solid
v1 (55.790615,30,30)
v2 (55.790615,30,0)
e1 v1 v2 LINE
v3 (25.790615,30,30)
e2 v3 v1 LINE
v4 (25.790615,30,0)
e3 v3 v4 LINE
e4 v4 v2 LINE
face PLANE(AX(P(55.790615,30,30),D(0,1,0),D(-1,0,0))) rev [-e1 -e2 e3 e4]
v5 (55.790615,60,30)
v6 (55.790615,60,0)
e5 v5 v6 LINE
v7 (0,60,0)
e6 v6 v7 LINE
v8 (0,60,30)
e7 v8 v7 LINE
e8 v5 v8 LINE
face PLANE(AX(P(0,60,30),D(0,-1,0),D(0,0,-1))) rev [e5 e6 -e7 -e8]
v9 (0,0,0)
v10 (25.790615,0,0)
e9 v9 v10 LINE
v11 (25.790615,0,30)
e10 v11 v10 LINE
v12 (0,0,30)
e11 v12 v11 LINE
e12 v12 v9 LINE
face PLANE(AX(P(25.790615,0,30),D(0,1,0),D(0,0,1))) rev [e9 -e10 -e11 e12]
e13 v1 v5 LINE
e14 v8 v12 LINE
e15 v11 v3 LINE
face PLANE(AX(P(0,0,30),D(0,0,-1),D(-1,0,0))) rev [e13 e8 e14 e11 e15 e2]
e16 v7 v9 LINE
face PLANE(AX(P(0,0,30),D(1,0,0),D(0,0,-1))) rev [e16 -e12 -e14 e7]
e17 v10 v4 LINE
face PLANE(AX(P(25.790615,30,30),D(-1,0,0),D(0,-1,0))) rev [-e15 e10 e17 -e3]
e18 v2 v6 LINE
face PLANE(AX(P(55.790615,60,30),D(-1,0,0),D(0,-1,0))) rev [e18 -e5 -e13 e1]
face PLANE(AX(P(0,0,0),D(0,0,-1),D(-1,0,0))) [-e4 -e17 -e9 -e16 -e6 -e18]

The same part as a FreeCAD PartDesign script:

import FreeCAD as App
import Part
import Sketcher
from FreeCAD import Vector

doc = App.newDocument("Part")
params = doc.addObject("Spreadsheet::Sheet", "Params")
for row, (alias, value) in enumerate([
    ("sketch1_width", "30 mm"),
    ("pad1_length", "30 mm"),
], start=1):
    params.set(f"A{row}", alias)
    params.set(f"B{row}", "=" + value)
    params.setAlias(f"B{row}", alias)

body = doc.addObject("PartDesign::Body", "Body")

# Sketch on XY plane
sketch1 = doc.addObject("Sketcher::SketchObject", "Sketch")
body.addObject(sketch1)
sketch1.AttachmentSupport = (doc.XY_Plane, [""])
sketch1.MapMode = "FlatFace"
sketch1.addGeometry([
    Part.LineSegment(Vector(0, 60, 0), Vector(0, 0, 0)),  # 0
    Part.LineSegment(Vector(0, 0, 0), Vector(26, 0, 0)),  # 1
    Part.LineSegment(Vector(26, 0, 0), Vector(26, 30, 0)),  # 2
    Part.LineSegment(Vector(26, 30, 0), Vector(56, 30, 0)),  # 3
    Part.LineSegment(Vector(56, 30, 0), Vector(56, 60, 0)),  # 4
    Part.LineSegment(Vector(56, 60, 0), Vector(0, 60, 0)),  # 5
], False)
sketch1.addConstraint([
    Sketcher.Constraint("Coincident", 0, 2, 1, 1),
    Sketcher.Constraint("Coincident", 1, 2, 2, 1),
    Sketcher.Constraint("Coincident", 2, 2, 3, 1),
    Sketcher.Constraint("Coincident", 3, 2, 4, 1),
    Sketcher.Constraint("Coincident", 4, 2, 5, 1),
    Sketcher.Constraint("Coincident", 5, 2, 0, 1),
    Sketcher.Constraint("Vertical", 0),
    Sketcher.Constraint("Horizontal", 1),
    Sketcher.Constraint("Vertical", 2),
    Sketcher.Constraint("Horizontal", 3),
    Sketcher.Constraint("Vertical", 4),
    Sketcher.Constraint("Horizontal", 5),
    Sketcher.Constraint("Coincident", 0, 2, -1, 1),
    Sketcher.Constraint("Equal", 3, 2),
    Sketcher.Constraint("Equal", 2, 4),
    Sketcher.Constraint("DistanceX", 3, 1, 3, 2, 30.0),
    Sketcher.Constraint("DistanceX", 1, 1, 1, 2, 25.790615),
])
sketch1.setExpression("Constraints[15]", "Params.sketch1_width")
pad1 = doc.addObject("PartDesign::Pad", "Pad")
body.addObject(pad1)
pad1.Profile = sketch1
pad1.setExpression("Length", "Params.pad1_length")

doc.recompute()
